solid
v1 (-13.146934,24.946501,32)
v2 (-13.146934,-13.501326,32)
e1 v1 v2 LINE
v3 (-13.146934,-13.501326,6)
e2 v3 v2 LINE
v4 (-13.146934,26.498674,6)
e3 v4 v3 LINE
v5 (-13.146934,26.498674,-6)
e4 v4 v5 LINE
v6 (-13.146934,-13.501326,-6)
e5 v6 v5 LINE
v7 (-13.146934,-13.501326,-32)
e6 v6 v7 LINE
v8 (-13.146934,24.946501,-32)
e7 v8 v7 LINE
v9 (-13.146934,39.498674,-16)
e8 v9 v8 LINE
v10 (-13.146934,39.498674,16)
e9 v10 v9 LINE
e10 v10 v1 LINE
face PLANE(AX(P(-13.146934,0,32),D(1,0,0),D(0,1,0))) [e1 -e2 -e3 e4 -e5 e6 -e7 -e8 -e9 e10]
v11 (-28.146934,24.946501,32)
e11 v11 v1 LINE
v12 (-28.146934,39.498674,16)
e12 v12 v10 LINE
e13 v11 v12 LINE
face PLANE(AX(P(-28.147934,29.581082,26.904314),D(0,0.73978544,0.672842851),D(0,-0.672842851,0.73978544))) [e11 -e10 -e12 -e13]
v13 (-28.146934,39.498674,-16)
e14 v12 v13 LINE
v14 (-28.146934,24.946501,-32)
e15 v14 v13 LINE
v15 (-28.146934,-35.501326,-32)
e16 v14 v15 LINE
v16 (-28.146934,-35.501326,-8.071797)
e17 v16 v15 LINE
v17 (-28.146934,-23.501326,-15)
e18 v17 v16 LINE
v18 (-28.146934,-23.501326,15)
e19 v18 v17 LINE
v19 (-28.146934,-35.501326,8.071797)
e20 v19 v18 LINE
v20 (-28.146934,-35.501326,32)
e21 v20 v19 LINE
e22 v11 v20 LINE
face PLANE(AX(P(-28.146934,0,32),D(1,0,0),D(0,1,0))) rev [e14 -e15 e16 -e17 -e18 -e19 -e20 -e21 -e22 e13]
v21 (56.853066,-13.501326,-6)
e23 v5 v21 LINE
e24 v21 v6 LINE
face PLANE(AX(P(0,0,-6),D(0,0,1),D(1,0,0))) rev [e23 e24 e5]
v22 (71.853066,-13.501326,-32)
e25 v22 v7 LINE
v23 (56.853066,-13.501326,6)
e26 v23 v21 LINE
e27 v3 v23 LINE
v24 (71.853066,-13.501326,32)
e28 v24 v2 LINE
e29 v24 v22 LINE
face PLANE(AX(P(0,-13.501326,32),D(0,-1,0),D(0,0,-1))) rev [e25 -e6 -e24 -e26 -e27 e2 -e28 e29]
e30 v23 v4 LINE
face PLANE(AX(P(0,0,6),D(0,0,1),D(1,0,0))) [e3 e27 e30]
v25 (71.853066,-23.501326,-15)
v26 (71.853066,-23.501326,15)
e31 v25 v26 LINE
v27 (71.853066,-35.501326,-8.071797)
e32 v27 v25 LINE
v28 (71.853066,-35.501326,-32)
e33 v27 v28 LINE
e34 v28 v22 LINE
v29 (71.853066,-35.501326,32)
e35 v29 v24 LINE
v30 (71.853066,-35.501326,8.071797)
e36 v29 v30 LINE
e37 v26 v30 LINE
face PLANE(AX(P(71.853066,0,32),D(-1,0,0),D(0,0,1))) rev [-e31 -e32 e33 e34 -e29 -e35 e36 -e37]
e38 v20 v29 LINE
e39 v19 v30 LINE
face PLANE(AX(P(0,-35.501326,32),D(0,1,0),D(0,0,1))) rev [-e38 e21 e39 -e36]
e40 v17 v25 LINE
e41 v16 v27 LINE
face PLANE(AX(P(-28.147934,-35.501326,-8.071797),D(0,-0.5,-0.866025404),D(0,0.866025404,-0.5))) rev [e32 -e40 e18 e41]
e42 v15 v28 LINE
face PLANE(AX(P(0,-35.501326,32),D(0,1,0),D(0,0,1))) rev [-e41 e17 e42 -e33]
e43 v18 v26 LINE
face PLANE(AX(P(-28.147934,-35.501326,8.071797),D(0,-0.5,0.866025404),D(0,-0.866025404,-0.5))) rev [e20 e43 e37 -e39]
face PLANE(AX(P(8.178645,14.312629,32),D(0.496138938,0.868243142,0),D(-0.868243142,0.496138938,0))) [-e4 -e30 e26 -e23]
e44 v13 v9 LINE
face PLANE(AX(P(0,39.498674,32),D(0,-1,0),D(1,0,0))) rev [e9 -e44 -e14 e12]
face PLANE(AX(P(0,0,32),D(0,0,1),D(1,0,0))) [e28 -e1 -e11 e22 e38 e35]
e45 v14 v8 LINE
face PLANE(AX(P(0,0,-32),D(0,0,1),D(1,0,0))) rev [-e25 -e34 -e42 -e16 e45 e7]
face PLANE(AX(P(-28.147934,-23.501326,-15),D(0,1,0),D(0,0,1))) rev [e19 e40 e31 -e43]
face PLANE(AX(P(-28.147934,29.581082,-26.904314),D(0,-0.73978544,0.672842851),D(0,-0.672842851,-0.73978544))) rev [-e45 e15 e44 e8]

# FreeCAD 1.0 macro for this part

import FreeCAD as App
import Part
import Sketcher

V = App.Vector
Q = App.Units.Quantity

doc = App.newDocument("Part")
body = doc.addObject("PartDesign::Body", "Body")

sketch1 = body.newObject("Sketcher::SketchObject", "Sketch")
sketch1.AttachmentSupport = (doc.getObject("XY_Plane"), [""])
sketch1.MapMode = "FlatFace"
sketch1.addGeometry([
    Part.LineSegment(V(56.853066, -13.501326, 0), V(-13.146934, 26.498674, 0)),
    Part.LineSegment(V(-13.146934, 26.498674, 0), V(-13.146934, 39.498674, 0)),
    Part.LineSegment(V(-13.146934, 39.498674, 0), V(-28.146934, 39.498674, 0)),
    Part.LineSegment(V(-28.146934, 39.498674, 0), V(-28.146934, -35.501326, 0)),
    Part.LineSegment(V(-28.146934, -35.501326, 0), V(71.853066, -35.501326, 0)),
    Part.LineSegment(V(71.853066, -35.501326, 0), V(71.853066, -13.501326, 0)),
    Part.LineSegment(V(71.853066, -13.501326, 0), V(56.853066, -13.501326, 0)),
], False)
sketch1.addConstraint([
    Sketcher.Constraint("Coincident", 0, 2, 1, 1),
    Sketcher.Constraint("Coincident", 1, 2, 2, 1),
    Sketcher.Constraint("Coincident", 2, 2, 3, 1),
    Sketcher.Constraint("Coincident", 3, 2, 4, 1),
    Sketcher.Constraint("Coincident", 4, 2, 5, 1),
    Sketcher.Constraint("Coincident", 5, 2, 6, 1),
    Sketcher.Constraint("Coincident", 6, 2, 0, 1),
    Sketcher.Constraint("Vertical", 1),
    Sketcher.Constraint("Horizontal", 2),
    Sketcher.Constraint("Vertical", 3),
    Sketcher.Constraint("Horizontal", 4),
    Sketcher.Constraint("Vertical", 5),
    Sketcher.Constraint("Horizontal", 6),
    Sketcher.Constraint("Equal", 2, 6),
    Sketcher.Constraint("DistanceX", 2, 2, 2, 1, 15.0),
    Sketcher.Constraint("DistanceX", 4, 1, 4, 2, 100.0),
    Sketcher.Constraint("DistanceY", 1, 1, 1, 2, 13.0),
    Sketcher.Constraint("DistanceY", 3, 2, 3, 1, 75.0),
    Sketcher.Constraint("DistanceY", 5, 1, 5, 2, 22.0),
    Sketcher.Constraint("DistanceX", 0, 2, -1, 1, 13.146934),
    Sketcher.Constraint("DistanceY", -1, 1, 0, 2, 26.498674),
])
pad1 = body.newObject("PartDesign::Pad", "Pad")
pad1.Profile = sketch1
pad1.Length = 64
pad1.Midplane = True

sketch2 = body.newObject("Sketcher::SketchObject", "Sketch001")
sketch2.AttachmentSupport = (doc.getObject("XY_Plane"), [""])
sketch2.MapMode = "FlatFace"
sketch2.AttachmentOffset = App.Placement(V(0, 0, 32), App.Rotation())
sketch2.addGeometry([
    Part.LineSegment(V(-13.146934, 26.498674, 0), V(-13.146934, -13.501326, 0)),
    Part.LineSegment(V(-13.146934, -13.501326, 0), V(56.853066, -13.501326, 0)),
    Part.LineSegment(V(56.853066, -13.501326, 0), V(-13.146934, 26.498674, 0)),
], False)
sketch2.addConstraint([
    Sketcher.Constraint("Coincident", 0, 2, 1, 1),
    Sketcher.Constraint("Coincident", 1, 2, 2, 1),
    Sketcher.Constraint("Coincident", 2, 2, 0, 1),
    Sketcher.Constraint("Vertical", 0),
    Sketcher.Constraint("Horizontal", 1),
    Sketcher.Constraint("DistanceX", 1, 1, 1, 2, 70.0),
    Sketcher.Constraint("DistanceY", 0, 2, 0, 1, 40.0),
    Sketcher.Constraint("DistanceX", 0, 2, -1, 1, 13.146934),
    Sketcher.Constraint("DistanceY", 0, 2, -1, 1, 13.501326),
])
pocket1 = body.newObject("PartDesign::Pocket", "Pocket")
pocket1.Profile = sketch2
pocket1.Length = 21

sketch3 = body.newObject("Sketcher::SketchObject", "Sketch002")
sketch3.AttachmentSupport = (doc.getObject("XY_Plane"), [""])
sketch3.MapMode = "FlatFace"
sketch3.AttachmentOffset = App.Placement(V(0, 0, -32), App.Rotation())
sketch3.addGeometry([
    Part.LineSegment(V(-13.146934, -13.501326, 0), V(-13.146934, 26.498674, 0)),
    Part.LineSegment(V(-13.146934, 26.498674, 0), V(56.853066, -13.501326, 0)),
    Part.LineSegment(V(56.853066, -13.501326, 0), V(-13.146934, -13.501326, 0)),
], False)
sketch3.addConstraint([
    Sketcher.Constraint("Coincident", 0, 2, 1, 1),
    Sketcher.Constraint("Coincident", 1, 2, 2, 1),
    Sketcher.Constraint("Coincident", 2, 2, 0, 1),
    Sketcher.Constraint("Vertical", 0),
    Sketcher.Constraint("Horizontal", 2),
    Sketcher.Constraint("DistanceX", 2, 2, 2, 1, 70.0),
    Sketcher.Constraint("DistanceY", 0, 1, 0, 2, 40.0),
    Sketcher.Constraint("DistanceX", 0, 2, -1, 1, 13.146934),
    Sketcher.Constraint("DistanceY", -1, 1, 0, 2, 26.498674),
])
pocket2 = body.newObject("PartDesign::Pocket", "Pocket001")
pocket2.Profile = sketch3
pocket2.Length = 21
pocket2.Reversed = True

sketch4 = body.newObject("Sketcher::SketchObject", "Sketch003")
sketch4.AttachmentSupport = (doc.getObject("XY_Plane"), [""])
sketch4.MapMode = "FlatFace"
sketch4.AttachmentOffset = App.Placement(V(0, 0, 11), App.Rotation())
sketch4.addGeometry([
    Part.LineSegment(V(56.853066, -13.501326, 0), V(-13.146934, 26.498674, 0)),
    Part.LineSegment(V(-13.146934, 26.498674, 0), V(-13.146934, -13.501326, 0)),
    Part.LineSegment(V(-13.146934, -13.501326, 0), V(56.853066, -13.501326, 0)),
], False)
sketch4.addConstraint([
    Sketcher.Constraint("Coincident", 0, 2, 1, 1),
    Sketcher.Constraint("Coincident", 1, 2, 2, 1),
    Sketcher.Constraint("Coincident", 2, 2, 0, 1),
    Sketcher.Constraint("Vertical", 1),
    Sketcher.Constraint("Horizontal", 2),
    Sketcher.Constraint("DistanceX", 2, 1, 2, 2, 70.0),
    Sketcher.Constraint("DistanceY", 1, 2, 1, 1, 40.0),
    Sketcher.Constraint("DistanceX", 0, 2, -1, 1, 13.146934),
    Sketcher.Constraint("DistanceY", -1, 1, 0, 2, 26.498674),
])
pocket3 = body.newObject("PartDesign::Pocket", "Pocket002")
pocket3.Profile = sketch4
pocket3.Length = 5

sketch5 = body.newObject("Sketcher::SketchObject", "Sketch004")
sketch5.AttachmentSupport = (doc.getObject("XY_Plane"), [""])
sketch5.MapMode = "FlatFace"
sketch5.AttachmentOffset = App.Placement(V(0, 0, -11), App.Rotation())
sketch5.addGeometry([
    Part.LineSegment(V(-13.146934, 26.498674, 0), V(56.853066, -13.501326, 0)),
    Part.LineSegment(V(56.853066, -13.501326, 0), V(-13.146934, -13.501326, 0)),
    Part.LineSegment(V(-13.146934, -13.501326, 0), V(-13.146934, 26.498674, 0)),
], False)
sketch5.addConstraint([
    Sketcher.Constraint("Coincident", 0, 2, 1, 1),
    Sketcher.Constraint("Coincident", 1, 2, 2, 1),
    Sketcher.Constraint("Coincident", 2, 2, 0, 1),
    Sketcher.Constraint("Horizontal", 1),
    Sketcher.Constraint("Vertical", 2),
    Sketcher.Constraint("DistanceX", 1, 2, 1, 1, 70.0),
    Sketcher.Constraint("DistanceY", 2, 1, 2, 2, 40.0),
    Sketcher.Constraint("DistanceX", -1, 1, 0, 2, 56.853066),
    Sketcher.Constraint("DistanceY", 0, 2, -1, 1, 13.501326),
])
pocket4 = body.newObject("PartDesign::Pocket", "Pocket003")
pocket4.Profile = sketch5
pocket4.Length = 5
pocket4.Reversed = True

sketch6 = body.newObject("Sketcher::SketchObject", "Sketch005")
sketch6.AttachmentSupport = (doc.getObject("YZ_Plane"), [""])
sketch6.MapMode = "FlatFace"
sketch6.AttachmentOffset = App.Placement(V(0, 0, -13.146934), App.Rotation())
sketch6.addGeometry([
    Part.LineSegment(V(39.498674, 16, 0), V(39.498674, 32, 0)),
    Part.LineSegment(V(39.498674, 32, 0), V(24.946501, 32, 0)),
    Part.LineSegment(V(24.946501, 32, 0), V(39.498674, 16, 0)),
], False)
sketch6.addConstraint([
    Sketcher.Constraint("Coincident", 0, 2, 1, 1),
    Sketcher.Constraint("Coincident", 1, 2, 2, 1),
    Sketcher.Constraint("Coincident", 2, 2, 0, 1),
    Sketcher.Constraint("Vertical", 0),
    Sketcher.Constraint("Horizontal", 1),
    Sketcher.Constraint("DistanceY", 0, 1, 0, 2, 16.0),
    Sketcher.Constraint("DistanceY", -1, 1, 0, 2, 32.0),
    Sketcher.Constraint("DistanceX", -1, 1, 1, 2, 24.946501),
    Sketcher.Constraint("DistanceX", 1, 2, 1, 1, 14.552173),
])
pocket5 = body.newObject("PartDesign::Pocket", "Pocket004")
pocket5.Profile = sketch6
pocket5.Type = "UpToFirst"

sketch7 = body.newObject("Sketcher::SketchObject", "Sketch006")
sketch7.AttachmentSupport = (doc.getObject("YZ_Plane"), [""])
sketch7.MapMode = "FlatFace"
sketch7.AttachmentOffset = App.Placement(V(0, 0, -13.146934), App.Rotation())
sketch7.addGeometry([
    Part.LineSegment(V(39.498674, -32, 0), V(39.498674, -16, 0)),
    Part.LineSegment(V(39.498674, -16, 0), V(24.946501, -32, 0)),
    Part.LineSegment(V(24.946501, -32, 0), V(39.498674, -32, 0)),
], False)
sketch7.addConstraint([
    Sketcher.Constraint("Coincident", 0, 2, 1, 1),
    Sketcher.Constraint("Coincident", 1, 2, 2, 1),
    Sketcher.Constraint("Coincident", 2, 2, 0, 1),
    Sketcher.Constraint("Vertical", 0),
    Sketcher.Constraint("Horizontal", 2),
    Sketcher.Constraint("DistanceY", 0, 1, 0, 2, 16.0),
    Sketcher.Constraint("DistanceY", 0, 2, -1, 1, 16.0),
    Sketcher.Constraint("DistanceX", -1, 1, 1, 2, 24.946501),
    Sketcher.Constraint("DistanceX", 2, 1, 2, 2, 14.552173),
])
pocket6 = body.newObject("PartDesign::Pocket", "Pocket005")
pocket6.Profile = sketch7
pocket6.Type = "UpToFirst"

sketch8 = body.newObject("Sketcher::SketchObject", "Sketch007")
sketch8.AttachmentSupport = (doc.getObject("YZ_Plane"), [""])
sketch8.MapMode = "FlatFace"
sketch8.AttachmentOffset = App.Placement(V(0, 0, 71.853066), App.Rotation())
sketch8.addGeometry([
    Part.LineSegment(V(-35.501326, 8.071797, 0), V(-35.501326, -8.071797, 0)),
    Part.LineSegment(V(-35.501326, -8.071797, 0), V(-23.501326, -15, 0)),
    Part.LineSegment(V(-23.501326, -15, 0), V(-23.501326, 15, 0)),
    Part.LineSegment(V(-23.501326, 15, 0), V(-35.501326, 8.071797, 0)),
], False)
sketch8.addConstraint([
    Sketcher.Constraint("Coincident", 0, 2, 1, 1),
    Sketcher.Constraint("Coincident", 1, 2, 2, 1),
    Sketcher.Constraint("Coincident", 2, 2, 3, 1),
    Sketcher.Constraint("Coincident", 3, 2, 0, 1),
    Sketcher.Constraint("Vertical", 0),
    Sketcher.Constraint("Vertical", 2),
    Sketcher.Constraint("Equal", 1, 3),
    Sketcher.Constraint("DistanceY", 2, 1, 2, 2, 30.0),
    Sketcher.Constraint("Angle", 1, Q("-30 deg")),
    Sketcher.Constraint("DistanceY", 1, 2, -1, 1, 15.0),
    Sketcher.Constraint("DistanceX", 0, 2, 1, 2, 12.0),
    Sketcher.Constraint("DistanceX", 0, 2, -1, 1, 35.501326),
])
pocket7 = body.newObject("PartDesign::Pocket", "Pocket006")
pocket7.Profile = sketch8
pocket7.Type = "UpToFirst"

doc.recompute()
